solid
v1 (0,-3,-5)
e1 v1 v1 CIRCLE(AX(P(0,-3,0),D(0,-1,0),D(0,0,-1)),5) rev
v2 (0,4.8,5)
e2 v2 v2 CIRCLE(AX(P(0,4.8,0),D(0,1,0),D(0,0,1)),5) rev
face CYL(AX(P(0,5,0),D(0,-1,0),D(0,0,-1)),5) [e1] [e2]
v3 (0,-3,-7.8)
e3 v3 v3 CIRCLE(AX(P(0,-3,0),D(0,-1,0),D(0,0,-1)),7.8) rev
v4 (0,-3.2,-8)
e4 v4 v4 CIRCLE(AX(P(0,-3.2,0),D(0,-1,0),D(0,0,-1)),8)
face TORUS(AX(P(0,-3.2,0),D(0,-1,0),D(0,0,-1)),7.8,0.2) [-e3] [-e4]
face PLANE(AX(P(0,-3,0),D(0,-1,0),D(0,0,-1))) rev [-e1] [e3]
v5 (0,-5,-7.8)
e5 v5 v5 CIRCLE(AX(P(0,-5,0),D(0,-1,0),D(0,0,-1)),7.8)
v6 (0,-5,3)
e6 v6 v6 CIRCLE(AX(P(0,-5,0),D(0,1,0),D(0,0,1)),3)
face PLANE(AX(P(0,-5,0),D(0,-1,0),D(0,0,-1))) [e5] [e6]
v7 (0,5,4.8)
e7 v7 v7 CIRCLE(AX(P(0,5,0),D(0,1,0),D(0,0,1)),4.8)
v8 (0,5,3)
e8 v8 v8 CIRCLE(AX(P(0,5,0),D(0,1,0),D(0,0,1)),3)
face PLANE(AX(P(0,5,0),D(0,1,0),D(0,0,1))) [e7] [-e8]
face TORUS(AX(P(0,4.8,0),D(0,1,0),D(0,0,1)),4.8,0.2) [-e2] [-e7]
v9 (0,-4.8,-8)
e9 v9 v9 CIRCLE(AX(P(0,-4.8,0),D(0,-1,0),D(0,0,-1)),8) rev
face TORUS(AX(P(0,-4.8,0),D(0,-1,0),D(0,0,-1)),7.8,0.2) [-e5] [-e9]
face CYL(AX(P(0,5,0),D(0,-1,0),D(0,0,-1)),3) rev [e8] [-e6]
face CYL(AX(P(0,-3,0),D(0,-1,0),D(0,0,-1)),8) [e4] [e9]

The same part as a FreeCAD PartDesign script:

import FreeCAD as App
import Part
import Sketcher
Q = App.Units.Quantity


def edges_at(feature, points):
    """Names of the edges that pass closest to the given points."""
    edges = feature.Shape.Edges
    near = lambda p: min(range(len(edges)), key=lambda i: edges[i].distToShape(Part.Vertex(*p))[0])
    return sorted({f"Edge{near(p) + 1}" for p in points})

doc = App.newDocument("Part")
body = doc.addObject("PartDesign::Body", "Body")

# Sketch on XZ plane
sketch1 = body.newObject("Sketcher::SketchObject", "Sketch")
sketch1.AttachmentSupport = (doc.getObject("XZ_Plane"), [""])
sketch1.MapMode = "FlatFace"
sketch1.addGeometry(Part.Circle(App.Vector(0, 0, 0), App.Vector(0, 0, 1), 5), False)
sketch1.addGeometry(Part.Circle(App.Vector(0, 0, 0), App.Vector(0, 0, 1), 3), False)
sketch1.addConstraint(Sketcher.Constraint("Coincident", 0, 3, -1, 1))
sketch1.addConstraint(Sketcher.Constraint("Coincident", 1, 3, -1, 1))
sketch1.addConstraint(Sketcher.Constraint("Diameter", 0, Q("10 mm")))
sketch1.addConstraint(Sketcher.Constraint("Diameter", 1, Q("6 mm")))
pad1 = body.newObject("PartDesign::Pad", "Pad")
pad1.Profile = sketch1
pad1.Length = 10
pad1.Midplane = True
body2 = doc.addObject("PartDesign::Body", "Body001")

# Sketch on XZ plane
sketch2 = body2.newObject("Sketcher::SketchObject", "Sketch001")
sketch2.AttachmentSupport = (doc.getObject("XZ_Plane001"), [""])
sketch2.MapMode = "FlatFace"
sketch2.AttachmentOffset = App.Placement(App.Vector(0, 0, 5), App.Rotation())
sketch2.addGeometry(Part.Circle(App.Vector(0, 0, 0), App.Vector(0, 0, 1), 8), False)
sketch2.addGeometry(Part.Circle(App.Vector(0, 0, 0), App.Vector(0, 0, 1), 5), False)
sketch2.addConstraint(Sketcher.Constraint("Coincident", 0, 3, -1, 1))
sketch2.addConstraint(Sketcher.Constraint("Coincident", 1, 3, -1, 1))
sketch2.addConstraint(Sketcher.Constraint("Diameter", 0, Q("16 mm")))
sketch2.addConstraint(Sketcher.Constraint("Diameter", 1, Q("10 mm")))
pad2 = body2.newObject("PartDesign::Pad", "Pad001")
pad2.Profile = sketch2
pad2.Length = 2
pad2.Reversed = True
doc.recompute()

boolean = body2.newObject("PartDesign::Boolean", "Boolean")
boolean.Type = "Fuse"
boolean.addObjects([body])
doc.recompute()

fillet = body2.newObject("PartDesign::Fillet", "Fillet")
fillet.Base = (boolean, edges_at(boolean, [(0, 5, -5), (0, -5, 8), (0, -3, 8)]))
fillet.Radius = 0.2

doc.recompute()
